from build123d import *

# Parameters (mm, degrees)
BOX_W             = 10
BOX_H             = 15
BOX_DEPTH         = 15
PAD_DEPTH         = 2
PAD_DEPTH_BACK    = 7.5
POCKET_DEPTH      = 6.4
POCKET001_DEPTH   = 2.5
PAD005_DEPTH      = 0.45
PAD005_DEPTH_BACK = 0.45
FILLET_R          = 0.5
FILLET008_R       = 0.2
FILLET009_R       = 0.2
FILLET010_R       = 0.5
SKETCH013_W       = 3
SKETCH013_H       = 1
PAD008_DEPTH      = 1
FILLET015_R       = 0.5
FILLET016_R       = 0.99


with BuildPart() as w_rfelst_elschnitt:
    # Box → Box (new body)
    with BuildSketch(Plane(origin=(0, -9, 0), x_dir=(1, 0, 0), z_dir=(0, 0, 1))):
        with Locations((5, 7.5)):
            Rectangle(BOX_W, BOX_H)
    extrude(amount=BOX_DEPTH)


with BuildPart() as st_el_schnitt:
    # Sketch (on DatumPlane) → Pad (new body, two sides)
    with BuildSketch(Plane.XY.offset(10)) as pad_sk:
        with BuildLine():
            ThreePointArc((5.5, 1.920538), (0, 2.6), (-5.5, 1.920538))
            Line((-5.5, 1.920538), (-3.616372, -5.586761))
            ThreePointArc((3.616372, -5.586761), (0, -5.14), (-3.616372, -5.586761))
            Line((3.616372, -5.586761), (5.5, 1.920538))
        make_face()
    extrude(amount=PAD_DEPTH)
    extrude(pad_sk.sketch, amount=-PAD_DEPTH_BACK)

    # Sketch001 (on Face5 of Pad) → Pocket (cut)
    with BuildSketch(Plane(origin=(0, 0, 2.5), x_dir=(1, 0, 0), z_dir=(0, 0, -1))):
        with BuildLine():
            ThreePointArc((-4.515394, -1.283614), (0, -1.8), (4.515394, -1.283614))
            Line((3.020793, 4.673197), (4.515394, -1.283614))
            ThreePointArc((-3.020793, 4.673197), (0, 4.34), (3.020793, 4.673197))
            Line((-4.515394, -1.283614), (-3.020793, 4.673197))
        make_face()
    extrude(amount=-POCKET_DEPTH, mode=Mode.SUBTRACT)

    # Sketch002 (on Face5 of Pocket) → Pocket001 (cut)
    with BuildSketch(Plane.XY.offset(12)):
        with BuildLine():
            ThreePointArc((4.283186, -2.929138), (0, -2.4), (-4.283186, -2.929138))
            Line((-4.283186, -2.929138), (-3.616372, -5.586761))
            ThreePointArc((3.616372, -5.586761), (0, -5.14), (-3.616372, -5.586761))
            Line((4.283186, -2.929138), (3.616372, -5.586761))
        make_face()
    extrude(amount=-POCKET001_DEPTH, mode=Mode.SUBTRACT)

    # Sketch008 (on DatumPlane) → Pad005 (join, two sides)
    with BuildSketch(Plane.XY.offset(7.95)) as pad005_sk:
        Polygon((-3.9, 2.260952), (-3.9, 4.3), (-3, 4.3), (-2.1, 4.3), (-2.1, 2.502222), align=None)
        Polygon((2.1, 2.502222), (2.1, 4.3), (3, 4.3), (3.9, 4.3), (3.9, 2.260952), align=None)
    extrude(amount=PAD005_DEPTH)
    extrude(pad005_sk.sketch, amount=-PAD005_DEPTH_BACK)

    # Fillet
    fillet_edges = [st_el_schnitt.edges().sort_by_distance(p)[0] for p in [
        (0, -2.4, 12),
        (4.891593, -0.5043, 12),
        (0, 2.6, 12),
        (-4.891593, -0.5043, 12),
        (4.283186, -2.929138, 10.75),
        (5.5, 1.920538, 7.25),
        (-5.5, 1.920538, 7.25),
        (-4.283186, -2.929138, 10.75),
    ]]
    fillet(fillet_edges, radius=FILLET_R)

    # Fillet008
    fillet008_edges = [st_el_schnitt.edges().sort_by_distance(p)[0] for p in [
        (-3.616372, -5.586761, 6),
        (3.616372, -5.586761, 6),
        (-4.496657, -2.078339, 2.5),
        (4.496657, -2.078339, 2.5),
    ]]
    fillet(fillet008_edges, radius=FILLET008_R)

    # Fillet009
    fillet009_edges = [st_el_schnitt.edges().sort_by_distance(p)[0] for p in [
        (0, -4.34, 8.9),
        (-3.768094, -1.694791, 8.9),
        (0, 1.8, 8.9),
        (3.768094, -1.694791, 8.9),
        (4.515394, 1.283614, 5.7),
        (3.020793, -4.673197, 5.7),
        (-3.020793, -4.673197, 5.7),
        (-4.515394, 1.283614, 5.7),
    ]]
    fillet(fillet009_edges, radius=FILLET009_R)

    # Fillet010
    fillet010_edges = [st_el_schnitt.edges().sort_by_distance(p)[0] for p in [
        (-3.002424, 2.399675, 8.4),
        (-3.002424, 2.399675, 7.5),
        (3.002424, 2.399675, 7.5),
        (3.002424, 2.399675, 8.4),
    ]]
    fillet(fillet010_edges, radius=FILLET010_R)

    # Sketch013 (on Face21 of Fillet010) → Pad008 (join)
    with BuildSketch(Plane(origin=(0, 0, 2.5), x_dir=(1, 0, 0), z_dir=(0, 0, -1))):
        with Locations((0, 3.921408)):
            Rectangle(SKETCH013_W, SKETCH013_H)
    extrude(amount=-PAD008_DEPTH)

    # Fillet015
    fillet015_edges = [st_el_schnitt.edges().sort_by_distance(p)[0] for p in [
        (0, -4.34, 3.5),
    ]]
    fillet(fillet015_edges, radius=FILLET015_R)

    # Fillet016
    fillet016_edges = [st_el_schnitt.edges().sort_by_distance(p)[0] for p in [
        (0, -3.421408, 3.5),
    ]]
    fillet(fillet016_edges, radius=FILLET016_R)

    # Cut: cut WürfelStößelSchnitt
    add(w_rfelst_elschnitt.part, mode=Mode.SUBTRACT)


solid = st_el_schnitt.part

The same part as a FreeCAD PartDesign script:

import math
import FreeCAD as App
import Part
import Sketcher

V = App.Vector
Q = App.Units.Quantity


def edges_at(feature, points):
    """Names of the edges that pass closest to the given points."""
    edges = feature.Shape.Edges
    near = lambda p: min(range(len(edges)), key=lambda i: edges[i].distToShape(Part.Vertex(*p))[0])
    return sorted({f"Edge{near(p) + 1}" for p in points})


def add_polygon(sketch, points):
    """Adds a closed chain of lines whose ends are joined by coincident constraints."""
    first, n = sketch.GeometryCount, len(points)
    for a, b in zip(points, points[1:] + points[:1]):
        sketch.addGeometry(Part.LineSegment(App.Vector(*a, 0), App.Vector(*b, 0)), False)
    for i in range(n):
        sketch.addConstraint(Sketcher.Constraint("Coincident", first + i, 2, first + (i + 1) % n, 1))

doc = App.newDocument("Part")
body = doc.addObject("PartDesign::Body", "Body")

# Sketch on XY plane
sketch1 = body.newObject("Sketcher::SketchObject", "Sketch")
sketch1.AttachmentSupport = (doc.getObject("XY_Plane"), [""])
sketch1.MapMode = "FlatFace"
add_polygon(sketch1, [(0, 6), (0, -9), (10, -9), (10, 6)])  # lines 0-3
sketch1.addConstraint([
    Sketcher.Constraint("Vertical", 0),
    Sketcher.Constraint("Horizontal", 1),
    Sketcher.Constraint("Vertical", 2),
    Sketcher.Constraint("Horizontal", 3),
    Sketcher.Constraint("PointOnObject", 0, 2, -2),
    Sketcher.Constraint("DistanceX", 1, 1, 1, 2, Q("10 mm")),
    Sketcher.Constraint("DistanceY", 0, 2, 0, 1, Q("15 mm")),
    Sketcher.Constraint("DistanceY", 0, 2, -1, 1, Q("9 mm")),
])
pad1 = body.newObject("PartDesign::Pad", "Pad")
pad1.Profile = sketch1
pad1.Length = 15
body2 = doc.addObject("PartDesign::Body", "Body001")

# Sketch on XY plane
sketch2 = body2.newObject("Sketcher::SketchObject", "Sketch001")
sketch2.AttachmentSupport = (doc.getObject("XY_Plane001"), [""])
sketch2.MapMode = "FlatFace"
sketch2.AttachmentOffset = App.Placement(V(0, 0, 10), App.Rotation())
sketch2.addGeometry([
    Part.ArcOfCircle(Part.Circle(V(0, -20, 0), V(0, 0, 1), 23), math.radians(76), math.radians(104)),
    Part.LineSegment(V(-6, 2, 0), V(-4, -6, 0)),
    Part.ArcOfCircle(Part.Circle(V(0, -20, 0), V(0, 0, 1), 15), math.radians(76), math.radians(104)),
    Part.LineSegment(V(4, -6, 0), V(6, 2, 0)),
], False)
sketch2.addConstraint([
    Sketcher.Constraint("Coincident", 0, 2, 1, 1),
    Sketcher.Constraint("Coincident", 1, 2, 2, 2),
    Sketcher.Constraint("Coincident", 2, 1, 3, 1),
    Sketcher.Constraint("Coincident", 3, 2, 0, 1),
    Sketcher.Constraint("Symmetric", 1, 2, 2, 1, -2),
    Sketcher.Constraint("Symmetric", 0, 2, 3, 2, -2),
    Sketcher.Constraint("DistanceX", 0, 2, 3, 2, Q("11 mm")),
    Sketcher.Constraint("Distance", 1, Q("7.74 mm")),
    Sketcher.Constraint("Radius", 0, Q("22.59999 mm")),
    Sketcher.Constraint("Radius", 2, Q("14.860005 mm")),
    Sketcher.Constraint("DistanceY", 1, 2, 0, 2, Q("7.507299 mm")),
    Sketcher.Constraint("DistanceY", 0, 3, -1, 1, Q("19.99999 mm")),
])
pad2 = body2.newObject("PartDesign::Pad", "Pad001")
pad2.Profile = sketch2
pad2.Type = "TwoLengths"
pad2.Length = 2
pad2.Length2 = 7.5

# Sketch on XY plane
sketch3 = body2.newObject("Sketcher::SketchObject", "Sketch002")
sketch3.AttachmentSupport = (doc.getObject("XY_Plane001"), [""])
sketch3.MapMode = "FlatFace"
sketch3.AttachmentOffset = App.Placement(V(0, 0, 2.5), App.Rotation())
sketch3.addGeometry([
    Part.ArcOfCircle(Part.Circle(V(0, -18, 0), V(0, 0, 1), 20), math.radians(77), math.radians(103)),
    Part.LineSegment(V(5, 1, 0), V(3, -5, 0)),
    Part.ArcOfCircle(Part.Circle(V(0, -18, 0), V(0, 0, 1), 14), math.radians(77), math.radians(103)),
    Part.LineSegment(V(-3, -5, 0), V(-5, 1, 0)),
], False)
sketch3.addConstraint([
    Sketcher.Constraint("Coincident", 0, 1, 1, 1),
    Sketcher.Constraint("Coincident", 1, 2, 2, 1),
    Sketcher.Constraint("Coincident", 2, 2, 3, 1),
    Sketcher.Constraint("Coincident", 3, 2, 0, 2),
    Sketcher.Constraint("Symmetric", 1, 2, 2, 2, -2),
    Sketcher.Constraint("Symmetric", 0, 1, 3, 2, -2),
    Sketcher.Constraint("Radius", 0, Q("19.999998 mm")),
    Sketcher.Constraint("Radius", 2, Q("13.859985 mm")),
    Sketcher.Constraint("DistanceY", 2, 3, 0, 1, Q("19.483599 mm")),
    Sketcher.Constraint("DistanceX", 1, 2, 0, 1, Q("1.494601 mm")),
    Sketcher.Constraint("DistanceY", 0, 3, 1, 2, Q("13.526801 mm")),
    Sketcher.Constraint("DistanceY", 0, 3, -1, 1, Q("18.199998 mm")),
])
pocket1 = body2.newObject("PartDesign::Pocket", "Pocket")
pocket1.Profile = sketch3
pocket1.Length = 6.4
pocket1.Reversed = True

# Sketch on XY plane
sketch4 = body2.newObject("Sketcher::SketchObject", "Sketch003")
sketch4.AttachmentSupport = (doc.getObject("XY_Plane001"), [""])
sketch4.MapMode = "FlatFace"
sketch4.AttachmentOffset = App.Placement(V(0, 0, 12), App.Rotation())
sketch4.addGeometry([
    Part.ArcOfCircle(Part.Circle(V(0, -20, 0), V(0, 0, 1), 17.6), math.radians(76), math.radians(104)),
    Part.LineSegment(V(-4.3, -2.9, 0), V(-3.6, -5.6, 0)),
    Part.ArcOfCircle(Part.Circle(V(0, -20, 0), V(0, 0, 1), 14.9), math.radians(76), math.radians(104)),
    Part.LineSegment(V(3.6, -5.6, 0), V(4.3, -2.9, 0)),
], False)
sketch4.addConstraint([
    Sketcher.Constraint("Coincident", 0, 2, 1, 1),
    Sketcher.Constraint("Coincident", 1, 2, 2, 2),
    Sketcher.Constraint("Coincident", 2, 1, 3, 1),
    Sketcher.Constraint("Coincident", 3, 2, 0, 1),
    Sketcher.Constraint("Coincident", 2, 3, 0, 3),
    Sketcher.Constraint("Symmetric", 1, 2, 2, 1, -2),
    Sketcher.Constraint("Horizontal", 0, 2, 3, 2),
    Sketcher.Constraint("Distance", 1, Q("2.74 mm")),
    Sketcher.Constraint("Radius", 0, Q("17.600011 mm")),
    Sketcher.Constraint("DistanceY", 0, 3, -1, 1, Q("20.000011 mm")),
    Sketcher.Constraint("DistanceY", 1, 2, -1, 1, Q("5.586761 mm")),
    Sketcher.Constraint("DistanceY", 3, 2, -1, 1, Q("2.929138 mm")),
])
pocket2 = body2.newObject("PartDesign::Pocket", "Pocket001")
pocket2.Profile = sketch4
pocket2.Length = 2.5

# Sketch on XY plane
sketch5 = body2.newObject("Sketcher::SketchObject", "Sketch004")
sketch5.AttachmentSupport = (doc.getObject("XY_Plane001"), [""])
sketch5.MapMode = "FlatFace"
sketch5.AttachmentOffset = App.Placement(V(0, 0, 7.95), App.Rotation())
add_polygon(sketch5, [(-3.9, 4.3), (-3.9, 2.3), (-2.1, 2.5), (-2.1, 4.3)])  # lines 0-3
add_polygon(sketch5, [(2.1, 4.3), (2.1, 2.5), (3.9, 2.3), (3.9, 4.3)])  # lines 4-7
sketch5.addConstraint([
    Sketcher.Constraint("Vertical", 0),
    Sketcher.Constraint("Vertical", 2),
    Sketcher.Constraint("Horizontal", 3),
    Sketcher.Constraint("Vertical", 4),
    Sketcher.Constraint("Vertical", 6),
    Sketcher.Constraint("Horizontal", 7),
    Sketcher.Constraint("Symmetric", 1, 2, 4, 2, -2),
    Sketcher.Constraint("Symmetric", 0, 2, 5, 2, -2),
    Sketcher.Constraint("Horizontal", 3, 2, 6, 2),
    Sketcher.Constraint("DistanceX", 3, 2, 3, 1, Q("1.8 mm")),
    Sketcher.Constraint("DistanceX", 0, 2, 4, 2, Q("6 mm")),
    Sketcher.Constraint("DistanceY", -1, 1, 2, 2, Q("4.3 mm")),
    Sketcher.Constraint("DistanceY", 0, 2, 0, 1, Q("2.039048 mm")),
    Sketcher.Constraint("DistanceY", 2, 1, 2, 2, Q("1.797778 mm")),
])
pad3 = body2.newObject("PartDesign::Pad", "Pad002")
pad3.Profile = sketch5
pad3.Type = "TwoLengths"
pad3.Length = 0.45
pad3.Length2 = 0.45
doc.recompute()

fillet = body2.newObject("PartDesign::Fillet", "Fillet")
fillet.Base = (pad3, edges_at(pad3, [
    (0, -2.4, 12),
    (4.892, -0.504, 12),
    (0, 2.6, 12),
    (-4.892, -0.504, 12),
    (4.283, -2.929, 10.75),
    (5.5, 1.921, 7.25),
    (-5.5, 1.921, 7.25),
    (-4.283, -2.929, 10.75),
]))
fillet.Radius = 0.5
doc.recompute()

fillet2 = body2.newObject("PartDesign::Fillet", "Fillet001")
fillet2.Base = (fillet, edges_at(fillet, [
    (-3.616, -5.587, 6),
    (3.616, -5.587, 6),
    (-4.497, -2.078, 2.5),
    (4.497, -2.078, 2.5),
]))
fillet2.Radius = 0.2
doc.recompute()

fillet3 = body2.newObject("PartDesign::Fillet", "Fillet002")
fillet3.Base = (fillet2, edges_at(fillet2, [
    (0, -4.34, 8.9),
    (-3.768, -1.695, 8.9),
    (0, 1.8, 8.9),
    (3.768, -1.695, 8.9),
    (4.515, 1.284, 5.7),
    (3.021, -4.673, 5.7),
    (-3.021, -4.673, 5.7),
    (-4.515, 1.284, 5.7),
]))
fillet3.Radius = 0.2
doc.recompute()

fillet4 = body2.newObject("PartDesign::Fillet", "Fillet003")
fillet4.Base = (fillet3, edges_at(fillet3, [
    (-3.002, 2.4, 8.4),
    (-3.002, 2.4, 7.5),
    (3.002, 2.4, 7.5),
    (3.002, 2.4, 8.4),
]))
fillet4.Radius = 0.5

# Sketch on XY plane
sketch6 = body2.newObject("Sketcher::SketchObject", "Sketch005")
sketch6.AttachmentSupport = (doc.getObject("XY_Plane001"), [""])
sketch6.MapMode = "FlatFace"
sketch6.AttachmentOffset = App.Placement(V(0, 0, 2.5), App.Rotation())
add_polygon(sketch6, [(-1.5, -4.4), (-1.5, -3.4), (1.5, -3.4), (1.5, -4.4)])  # lines 0-3
sketch6.addConstraint([
    Sketcher.Constraint("Vertical", 0),
    Sketcher.Constraint("Horizontal", 1),
    Sketcher.Constraint("Vertical", 2),
    Sketcher.Constraint("Horizontal", 3),
    Sketcher.Constraint("DistanceX", 1, 1, 1, 2, Q("3 mm")),
    Sketcher.Constraint("DistanceY", 0, 1, 0, 2, Q("1 mm")),
    Sketcher.Constraint("DistanceX", 0, 2, -1, 1, Q("1.5 mm")),
    Sketcher.Constraint("DistanceY", 0, 2, -1, 1, Q("3.421408 mm")),
])
pad4 = body2.newObject("PartDesign::Pad", "Pad003")
pad4.Profile = sketch6
pad4.Length = 1
doc.recompute()

fillet5 = body2.newObject("PartDesign::Fillet", "Fillet004")
fillet5.Base = (pad4, edges_at(pad4, [(0, -4.34, 3.5)]))
fillet5.Radius = 0.5
doc.recompute()

fillet6 = body2.newObject("PartDesign::Fillet", "Fillet005")
fillet6.Base = (fillet5, edges_at(fillet5, [(0, -3.421, 3.5)]))
fillet6.Radius = 0.99
doc.recompute()

boolean = body2.newObject("PartDesign::Boolean", "Boolean")
boolean.Type = "Cut"
boolean.addObjects([body])

doc.recompute()
